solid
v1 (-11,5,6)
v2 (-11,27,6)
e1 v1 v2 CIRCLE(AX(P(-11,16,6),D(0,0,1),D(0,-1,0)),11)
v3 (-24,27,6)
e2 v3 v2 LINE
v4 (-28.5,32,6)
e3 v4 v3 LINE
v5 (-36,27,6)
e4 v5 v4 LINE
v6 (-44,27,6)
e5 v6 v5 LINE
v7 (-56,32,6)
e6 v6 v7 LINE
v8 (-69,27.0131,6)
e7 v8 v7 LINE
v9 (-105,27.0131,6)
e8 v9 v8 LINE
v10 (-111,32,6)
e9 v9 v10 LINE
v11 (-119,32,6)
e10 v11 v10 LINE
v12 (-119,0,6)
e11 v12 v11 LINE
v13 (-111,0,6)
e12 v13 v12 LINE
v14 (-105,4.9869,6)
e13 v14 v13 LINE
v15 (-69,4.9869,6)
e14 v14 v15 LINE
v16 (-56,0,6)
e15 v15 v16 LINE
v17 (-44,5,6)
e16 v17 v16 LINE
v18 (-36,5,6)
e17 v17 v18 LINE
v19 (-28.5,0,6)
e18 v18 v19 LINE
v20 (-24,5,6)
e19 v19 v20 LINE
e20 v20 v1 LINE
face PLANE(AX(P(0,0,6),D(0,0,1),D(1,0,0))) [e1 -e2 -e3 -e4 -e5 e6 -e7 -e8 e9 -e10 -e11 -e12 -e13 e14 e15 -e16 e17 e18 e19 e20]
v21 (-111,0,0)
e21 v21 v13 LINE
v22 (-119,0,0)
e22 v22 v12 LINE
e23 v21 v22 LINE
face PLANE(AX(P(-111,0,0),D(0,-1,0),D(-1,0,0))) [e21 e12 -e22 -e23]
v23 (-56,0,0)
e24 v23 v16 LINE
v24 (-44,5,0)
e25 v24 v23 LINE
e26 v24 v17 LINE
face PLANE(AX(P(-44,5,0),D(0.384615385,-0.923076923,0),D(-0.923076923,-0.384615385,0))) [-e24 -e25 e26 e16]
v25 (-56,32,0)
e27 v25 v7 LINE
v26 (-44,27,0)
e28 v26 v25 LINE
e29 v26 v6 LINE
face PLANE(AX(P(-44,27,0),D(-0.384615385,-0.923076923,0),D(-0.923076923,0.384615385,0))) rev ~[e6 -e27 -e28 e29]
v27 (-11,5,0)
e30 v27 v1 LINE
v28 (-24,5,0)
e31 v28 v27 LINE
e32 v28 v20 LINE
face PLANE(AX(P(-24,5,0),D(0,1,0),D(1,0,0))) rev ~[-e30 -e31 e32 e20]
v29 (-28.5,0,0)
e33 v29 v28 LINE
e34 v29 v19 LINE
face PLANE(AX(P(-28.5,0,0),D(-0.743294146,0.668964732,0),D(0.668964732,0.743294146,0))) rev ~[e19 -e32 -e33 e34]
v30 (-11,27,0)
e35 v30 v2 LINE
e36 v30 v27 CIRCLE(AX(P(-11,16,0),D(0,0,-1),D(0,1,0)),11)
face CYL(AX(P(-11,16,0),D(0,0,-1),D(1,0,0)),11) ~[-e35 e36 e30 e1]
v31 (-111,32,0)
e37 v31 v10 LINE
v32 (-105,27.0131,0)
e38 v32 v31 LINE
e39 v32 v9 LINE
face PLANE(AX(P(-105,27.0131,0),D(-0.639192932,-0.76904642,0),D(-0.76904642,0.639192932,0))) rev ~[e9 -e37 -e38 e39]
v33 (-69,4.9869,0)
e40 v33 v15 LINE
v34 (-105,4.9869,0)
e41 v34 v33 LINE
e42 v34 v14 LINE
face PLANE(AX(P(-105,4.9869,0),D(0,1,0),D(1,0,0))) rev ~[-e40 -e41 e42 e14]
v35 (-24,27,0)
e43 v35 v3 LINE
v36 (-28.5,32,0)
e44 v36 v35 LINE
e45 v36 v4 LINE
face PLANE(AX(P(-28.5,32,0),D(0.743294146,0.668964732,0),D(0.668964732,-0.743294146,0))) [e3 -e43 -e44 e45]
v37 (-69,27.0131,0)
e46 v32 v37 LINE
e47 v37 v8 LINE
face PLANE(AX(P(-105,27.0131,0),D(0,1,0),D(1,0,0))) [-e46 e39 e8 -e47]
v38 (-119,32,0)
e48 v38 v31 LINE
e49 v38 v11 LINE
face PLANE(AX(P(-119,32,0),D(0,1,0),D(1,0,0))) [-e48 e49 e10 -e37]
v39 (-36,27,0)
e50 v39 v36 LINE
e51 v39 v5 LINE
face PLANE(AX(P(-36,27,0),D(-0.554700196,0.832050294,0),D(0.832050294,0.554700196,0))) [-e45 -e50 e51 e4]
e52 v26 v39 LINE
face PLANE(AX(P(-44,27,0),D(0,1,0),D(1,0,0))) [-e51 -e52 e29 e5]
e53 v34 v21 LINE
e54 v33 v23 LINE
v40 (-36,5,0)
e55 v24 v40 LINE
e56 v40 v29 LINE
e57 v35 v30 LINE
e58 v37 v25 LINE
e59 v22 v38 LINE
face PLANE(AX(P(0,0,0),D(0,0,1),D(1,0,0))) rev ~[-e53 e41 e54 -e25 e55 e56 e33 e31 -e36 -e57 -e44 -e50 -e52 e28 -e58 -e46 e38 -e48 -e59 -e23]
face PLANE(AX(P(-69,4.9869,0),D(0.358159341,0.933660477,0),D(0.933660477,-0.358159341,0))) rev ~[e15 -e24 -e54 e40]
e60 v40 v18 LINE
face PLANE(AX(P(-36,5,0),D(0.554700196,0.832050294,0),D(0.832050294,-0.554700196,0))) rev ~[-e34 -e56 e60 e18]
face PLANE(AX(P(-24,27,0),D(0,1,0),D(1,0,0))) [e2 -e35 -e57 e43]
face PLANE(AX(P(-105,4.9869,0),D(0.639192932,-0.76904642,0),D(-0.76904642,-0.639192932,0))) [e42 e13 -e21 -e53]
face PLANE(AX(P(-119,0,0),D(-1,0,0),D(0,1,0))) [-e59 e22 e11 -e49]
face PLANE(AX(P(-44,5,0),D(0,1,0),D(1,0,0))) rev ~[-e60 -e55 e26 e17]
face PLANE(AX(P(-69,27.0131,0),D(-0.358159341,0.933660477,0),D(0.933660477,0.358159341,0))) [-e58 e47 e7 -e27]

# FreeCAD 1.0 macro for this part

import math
import FreeCAD as App
import Part
import Sketcher

doc = App.newDocument("Part")
body = doc.addObject("PartDesign::Body", "Body")

# Sketch on XY plane
sketch1 = body.newObject("Sketcher::SketchObject", "Sketch")
sketch1.AttachmentSupport = (doc.getObject("XY_Plane"), [""])
sketch1.MapMode = "FlatFace"
sketch1.addGeometry([
    Part.LineSegment(App.Vector(-36, 5, 0), App.Vector(-28, 0, 0)),  # 0
    Part.LineSegment(App.Vector(-28, 0, 0), App.Vector(-24, 5, 0)),  # 1
    Part.LineSegment(App.Vector(-24, 5, 0), App.Vector(-11, 5, 0)),  # 2
    Part.ArcOfCircle(Part.Circle(App.Vector(-11, 16, 0), App.Vector(0, 0, 1), 11), math.radians(-90), math.radians(90)),  # 3
    Part.LineSegment(App.Vector(-11, 27, 0), App.Vector(-24, 27, 0)),  # 4
    Part.LineSegment(App.Vector(-24, 27, 0), App.Vector(-28, 32, 0)),  # 5
    Part.LineSegment(App.Vector(-28, 32, 0), App.Vector(-36, 27, 0)),  # 6
    Part.LineSegment(App.Vector(-36, 27, 0), App.Vector(-44, 27, 0)),  # 7
    Part.LineSegment(App.Vector(-44, 27, 0), App.Vector(-56, 32, 0)),  # 8
    Part.LineSegment(App.Vector(-56, 32, 0), App.Vector(-69, 27, 0)),  # 9
    Part.LineSegment(App.Vector(-69, 27, 0), App.Vector(-105, 27, 0)),  # 10
    Part.LineSegment(App.Vector(-105, 27, 0), App.Vector(-111, 32, 0)),  # 11
    Part.LineSegment(App.Vector(-111, 32, 0), App.Vector(-119, 32, 0)),  # 12
    Part.LineSegment(App.Vector(-119, 32, 0), App.Vector(-119, 0, 0)),  # 13
    Part.LineSegment(App.Vector(-119, 0, 0), App.Vector(-111, 0, 0)),  # 14
    Part.LineSegment(App.Vector(-111, 0, 0), App.Vector(-105, 5, 0)),  # 15
    Part.LineSegment(App.Vector(-105, 5, 0), App.Vector(-69, 5, 0)),  # 16
    Part.LineSegment(App.Vector(-69, 5, 0), App.Vector(-56, 0, 0)),  # 17
    Part.LineSegment(App.Vector(-56, 0, 0), App.Vector(-44, 5, 0)),  # 18
    Part.LineSegment(App.Vector(-44, 5, 0), App.Vector(-36, 5, 0)),  # 19
], False)
sketch1.addConstraint([
    Sketcher.Constraint("Coincident", 0, 2, 1, 1),
    Sketcher.Constraint("Coincident", 1, 2, 2, 1),
    Sketcher.Constraint("Tangent", 2, 2, 3, 1),
    Sketcher.Constraint("Tangent", 3, 2, 4, 1),
    Sketcher.Constraint("Coincident", 4, 2, 5, 1),
    Sketcher.Constraint("Coincident", 5, 2, 6, 1),
    Sketcher.Constraint("Coincident", 6, 2, 7, 1),
    Sketcher.Constraint("Coincident", 7, 2, 8, 1),
    Sketcher.Constraint("Coincident", 8, 2, 9, 1),
    Sketcher.Constraint("Coincident", 9, 2, 10, 1),
    Sketcher.Constraint("Coincident", 10, 2, 11, 1),
    Sketcher.Constraint("Coincident", 11, 2, 12, 1),
    Sketcher.Constraint("Coincident", 12, 2, 13, 1),
    Sketcher.Constraint("Coincident", 13, 2, 14, 1),
    Sketcher.Constraint("Coincident", 14, 2, 15, 1),
    Sketcher.Constraint("Coincident", 15, 2, 16, 1),
    Sketcher.Constraint("Coincident", 16, 2, 17, 1),
    Sketcher.Constraint("Coincident", 17, 2, 18, 1),
    Sketcher.Constraint("Coincident", 18, 2, 19, 1),
    Sketcher.Constraint("Coincident", 19, 2, 0, 1),
    Sketcher.Constraint("Horizontal", 2),
    Sketcher.Constraint("Horizontal", 4),
    Sketcher.Constraint("Horizontal", 7),
    Sketcher.Constraint("Horizontal", 10),
    Sketcher.Constraint("Horizontal", 12),
    Sketcher.Constraint("Vertical", 13),
    Sketcher.Constraint("Horizontal", 14),
    Sketcher.Constraint("Horizontal", 16),
    Sketcher.Constraint("Horizontal", 19),
    Sketcher.Constraint("PointOnObject", 0, 2, -1),
    Sketcher.Constraint("PointOnObject", 13, 2, -1),
    Sketcher.Constraint("PointOnObject", 17, 2, -1),
    Sketcher.Constraint("Horizontal", 4, 2, 6, 2),
    Sketcher.Constraint("Horizontal", 5, 2, 8, 2),
    Sketcher.Constraint("Horizontal", 8, 2, 11, 2),
    Sketcher.Constraint("Horizontal", 2, 2, 18, 2),
    Sketcher.Constraint("Vertical", 1, 2, 4, 2),
    Sketcher.Constraint("Vertical", 0, 2, 5, 2),
    Sketcher.Constraint("Vertical", 11, 2, 14, 2),
    Sketcher.Constraint("Vertical", 10, 2, 15, 2),
    Sketcher.Constraint("Vertical", 9, 2, 16, 2),
    Sketcher.Constraint("Vertical", 8, 2, 17, 2),
    Sketcher.Constraint("Vertical", 7, 2, 18, 2),
    Sketcher.Constraint("Vertical", 6, 2, 19, 2),
    Sketcher.Constraint("Equal", 7, 12),
    Sketcher.Constraint("Equal", 1, 5),
    Sketcher.Constraint("Equal", 11, 15),
    Sketcher.Constraint("DistanceX", 7, 2, 7, 1, 8.0),
    Sketcher.Constraint("DistanceX", 10, 2, 10, 1, 36.0),
    Sketcher.Constraint("DistanceY", 13, 2, 13, 1, 32.0),
    Sketcher.Constraint("DistanceX", 6, 2, -1, 1, 36.0),
    Sketcher.Constraint("DistanceX", 12, 2, -1, 1, 119.0),
    Sketcher.Constraint("Radius", 3, 11.0),
    Sketcher.Constraint("DistanceX", 6, 2, 4, 2, 12.0),
    Sketcher.Constraint("DistanceX", 6, 2, 3, 2, 25.0),
    Sketcher.Constraint("DistanceX", 8, 2, 7, 2, 12.0),
    Sketcher.Constraint("DistanceX", 9, 2, 7, 2, 25.0),
    Sketcher.Constraint("DistanceX", 0, 2, -1, 1, 28.5),
    Sketcher.Constraint("DistanceY", -1, 1, 9, 2, 27.013),
])
pad1 = body.newObject("PartDesign::Pad", "Pad")
pad1.Profile = sketch1
pad1.Length = 6

doc.recompute()
